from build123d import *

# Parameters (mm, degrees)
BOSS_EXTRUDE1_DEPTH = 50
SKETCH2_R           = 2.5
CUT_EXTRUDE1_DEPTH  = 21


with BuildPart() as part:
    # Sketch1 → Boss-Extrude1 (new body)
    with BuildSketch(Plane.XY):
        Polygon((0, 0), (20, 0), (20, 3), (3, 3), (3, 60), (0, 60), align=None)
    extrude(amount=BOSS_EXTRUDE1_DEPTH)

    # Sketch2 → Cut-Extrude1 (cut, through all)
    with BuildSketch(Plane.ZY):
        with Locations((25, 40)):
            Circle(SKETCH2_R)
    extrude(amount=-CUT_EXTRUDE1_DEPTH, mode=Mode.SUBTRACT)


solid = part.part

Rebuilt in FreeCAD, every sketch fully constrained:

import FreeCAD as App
import Part
import Sketcher
from FreeCAD import Vector
Q = App.Units.Quantity


def add_polygon(sketch, points):
    """Adds a closed chain of lines whose ends are joined by coincident constraints."""
    first, n = sketch.GeometryCount, len(points)
    for a, b in zip(points, points[1:] + points[:1]):
        sketch.addGeometry(Part.LineSegment(App.Vector(*a, 0), App.Vector(*b, 0)), False)
    for i in range(n):
        sketch.addConstraint(Sketcher.Constraint("Coincident", first + i, 2, first + (i + 1) % n, 1))

doc = App.newDocument("Part")
body = doc.addObject("PartDesign::Body", "Body")

sketch1 = body.newObject("Sketcher::SketchObject", "Sketch")
sketch1.AttachmentSupport = (doc.getObject("XY_Plane"), [""])
sketch1.MapMode = "FlatFace"
add_polygon(sketch1, [(0, 0), (20, 0), (20, 3), (3, 3), (3, 60), (0, 60)])
sketch1.addConstraint([
    Sketcher.Constraint("Horizontal", 0),
    Sketcher.Constraint("Vertical", 1),
    Sketcher.Constraint("Horizontal", 2),
    Sketcher.Constraint("Vertical", 3),
    Sketcher.Constraint("Horizontal", 4),
    Sketcher.Constraint("Vertical", 5),
    Sketcher.Constraint("Coincident", 5, 2, -1, 1),
    Sketcher.Constraint("Equal", 4, 1),
    Sketcher.Constraint("DistanceX", 0, 1, 0, 2, Q("20 mm")),
    Sketcher.Constraint("DistanceX", 2, 2, 2, 1, Q("17 mm")),
    Sketcher.Constraint("DistanceY", 3, 1, 3, 2, Q("57 mm")),
])
pad1 = body.newObject("PartDesign::Pad", "Pad")
pad1.Profile = sketch1
pad1.Length = 50

sketch2 = body.newObject("Sketcher::SketchObject", "Sketch001")
sketch2.AttachmentSupport = (doc.getObject("YZ_Plane"), [""])
sketch2.MapMode = "FlatFace"
sketch2.addGeometry(Part.Circle(Vector(40, 25, 0), Vector(0, 0, 1), 2.5), False)
sketch2.addConstraint([
    Sketcher.Constraint("Diameter", 0, Q("5 mm")),
    Sketcher.Constraint("DistanceX", -1, 1, 0, 3, Q("40 mm")),
    Sketcher.Constraint("DistanceY", -1, 1, 0, 3, Q("25 mm")),
])
pocket1 = body.newObject("PartDesign::Pocket", "Pocket")
pocket1.Profile = sketch2
pocket1.Type = "ThroughAll"
pocket1.Reversed = True

doc.recompute()
